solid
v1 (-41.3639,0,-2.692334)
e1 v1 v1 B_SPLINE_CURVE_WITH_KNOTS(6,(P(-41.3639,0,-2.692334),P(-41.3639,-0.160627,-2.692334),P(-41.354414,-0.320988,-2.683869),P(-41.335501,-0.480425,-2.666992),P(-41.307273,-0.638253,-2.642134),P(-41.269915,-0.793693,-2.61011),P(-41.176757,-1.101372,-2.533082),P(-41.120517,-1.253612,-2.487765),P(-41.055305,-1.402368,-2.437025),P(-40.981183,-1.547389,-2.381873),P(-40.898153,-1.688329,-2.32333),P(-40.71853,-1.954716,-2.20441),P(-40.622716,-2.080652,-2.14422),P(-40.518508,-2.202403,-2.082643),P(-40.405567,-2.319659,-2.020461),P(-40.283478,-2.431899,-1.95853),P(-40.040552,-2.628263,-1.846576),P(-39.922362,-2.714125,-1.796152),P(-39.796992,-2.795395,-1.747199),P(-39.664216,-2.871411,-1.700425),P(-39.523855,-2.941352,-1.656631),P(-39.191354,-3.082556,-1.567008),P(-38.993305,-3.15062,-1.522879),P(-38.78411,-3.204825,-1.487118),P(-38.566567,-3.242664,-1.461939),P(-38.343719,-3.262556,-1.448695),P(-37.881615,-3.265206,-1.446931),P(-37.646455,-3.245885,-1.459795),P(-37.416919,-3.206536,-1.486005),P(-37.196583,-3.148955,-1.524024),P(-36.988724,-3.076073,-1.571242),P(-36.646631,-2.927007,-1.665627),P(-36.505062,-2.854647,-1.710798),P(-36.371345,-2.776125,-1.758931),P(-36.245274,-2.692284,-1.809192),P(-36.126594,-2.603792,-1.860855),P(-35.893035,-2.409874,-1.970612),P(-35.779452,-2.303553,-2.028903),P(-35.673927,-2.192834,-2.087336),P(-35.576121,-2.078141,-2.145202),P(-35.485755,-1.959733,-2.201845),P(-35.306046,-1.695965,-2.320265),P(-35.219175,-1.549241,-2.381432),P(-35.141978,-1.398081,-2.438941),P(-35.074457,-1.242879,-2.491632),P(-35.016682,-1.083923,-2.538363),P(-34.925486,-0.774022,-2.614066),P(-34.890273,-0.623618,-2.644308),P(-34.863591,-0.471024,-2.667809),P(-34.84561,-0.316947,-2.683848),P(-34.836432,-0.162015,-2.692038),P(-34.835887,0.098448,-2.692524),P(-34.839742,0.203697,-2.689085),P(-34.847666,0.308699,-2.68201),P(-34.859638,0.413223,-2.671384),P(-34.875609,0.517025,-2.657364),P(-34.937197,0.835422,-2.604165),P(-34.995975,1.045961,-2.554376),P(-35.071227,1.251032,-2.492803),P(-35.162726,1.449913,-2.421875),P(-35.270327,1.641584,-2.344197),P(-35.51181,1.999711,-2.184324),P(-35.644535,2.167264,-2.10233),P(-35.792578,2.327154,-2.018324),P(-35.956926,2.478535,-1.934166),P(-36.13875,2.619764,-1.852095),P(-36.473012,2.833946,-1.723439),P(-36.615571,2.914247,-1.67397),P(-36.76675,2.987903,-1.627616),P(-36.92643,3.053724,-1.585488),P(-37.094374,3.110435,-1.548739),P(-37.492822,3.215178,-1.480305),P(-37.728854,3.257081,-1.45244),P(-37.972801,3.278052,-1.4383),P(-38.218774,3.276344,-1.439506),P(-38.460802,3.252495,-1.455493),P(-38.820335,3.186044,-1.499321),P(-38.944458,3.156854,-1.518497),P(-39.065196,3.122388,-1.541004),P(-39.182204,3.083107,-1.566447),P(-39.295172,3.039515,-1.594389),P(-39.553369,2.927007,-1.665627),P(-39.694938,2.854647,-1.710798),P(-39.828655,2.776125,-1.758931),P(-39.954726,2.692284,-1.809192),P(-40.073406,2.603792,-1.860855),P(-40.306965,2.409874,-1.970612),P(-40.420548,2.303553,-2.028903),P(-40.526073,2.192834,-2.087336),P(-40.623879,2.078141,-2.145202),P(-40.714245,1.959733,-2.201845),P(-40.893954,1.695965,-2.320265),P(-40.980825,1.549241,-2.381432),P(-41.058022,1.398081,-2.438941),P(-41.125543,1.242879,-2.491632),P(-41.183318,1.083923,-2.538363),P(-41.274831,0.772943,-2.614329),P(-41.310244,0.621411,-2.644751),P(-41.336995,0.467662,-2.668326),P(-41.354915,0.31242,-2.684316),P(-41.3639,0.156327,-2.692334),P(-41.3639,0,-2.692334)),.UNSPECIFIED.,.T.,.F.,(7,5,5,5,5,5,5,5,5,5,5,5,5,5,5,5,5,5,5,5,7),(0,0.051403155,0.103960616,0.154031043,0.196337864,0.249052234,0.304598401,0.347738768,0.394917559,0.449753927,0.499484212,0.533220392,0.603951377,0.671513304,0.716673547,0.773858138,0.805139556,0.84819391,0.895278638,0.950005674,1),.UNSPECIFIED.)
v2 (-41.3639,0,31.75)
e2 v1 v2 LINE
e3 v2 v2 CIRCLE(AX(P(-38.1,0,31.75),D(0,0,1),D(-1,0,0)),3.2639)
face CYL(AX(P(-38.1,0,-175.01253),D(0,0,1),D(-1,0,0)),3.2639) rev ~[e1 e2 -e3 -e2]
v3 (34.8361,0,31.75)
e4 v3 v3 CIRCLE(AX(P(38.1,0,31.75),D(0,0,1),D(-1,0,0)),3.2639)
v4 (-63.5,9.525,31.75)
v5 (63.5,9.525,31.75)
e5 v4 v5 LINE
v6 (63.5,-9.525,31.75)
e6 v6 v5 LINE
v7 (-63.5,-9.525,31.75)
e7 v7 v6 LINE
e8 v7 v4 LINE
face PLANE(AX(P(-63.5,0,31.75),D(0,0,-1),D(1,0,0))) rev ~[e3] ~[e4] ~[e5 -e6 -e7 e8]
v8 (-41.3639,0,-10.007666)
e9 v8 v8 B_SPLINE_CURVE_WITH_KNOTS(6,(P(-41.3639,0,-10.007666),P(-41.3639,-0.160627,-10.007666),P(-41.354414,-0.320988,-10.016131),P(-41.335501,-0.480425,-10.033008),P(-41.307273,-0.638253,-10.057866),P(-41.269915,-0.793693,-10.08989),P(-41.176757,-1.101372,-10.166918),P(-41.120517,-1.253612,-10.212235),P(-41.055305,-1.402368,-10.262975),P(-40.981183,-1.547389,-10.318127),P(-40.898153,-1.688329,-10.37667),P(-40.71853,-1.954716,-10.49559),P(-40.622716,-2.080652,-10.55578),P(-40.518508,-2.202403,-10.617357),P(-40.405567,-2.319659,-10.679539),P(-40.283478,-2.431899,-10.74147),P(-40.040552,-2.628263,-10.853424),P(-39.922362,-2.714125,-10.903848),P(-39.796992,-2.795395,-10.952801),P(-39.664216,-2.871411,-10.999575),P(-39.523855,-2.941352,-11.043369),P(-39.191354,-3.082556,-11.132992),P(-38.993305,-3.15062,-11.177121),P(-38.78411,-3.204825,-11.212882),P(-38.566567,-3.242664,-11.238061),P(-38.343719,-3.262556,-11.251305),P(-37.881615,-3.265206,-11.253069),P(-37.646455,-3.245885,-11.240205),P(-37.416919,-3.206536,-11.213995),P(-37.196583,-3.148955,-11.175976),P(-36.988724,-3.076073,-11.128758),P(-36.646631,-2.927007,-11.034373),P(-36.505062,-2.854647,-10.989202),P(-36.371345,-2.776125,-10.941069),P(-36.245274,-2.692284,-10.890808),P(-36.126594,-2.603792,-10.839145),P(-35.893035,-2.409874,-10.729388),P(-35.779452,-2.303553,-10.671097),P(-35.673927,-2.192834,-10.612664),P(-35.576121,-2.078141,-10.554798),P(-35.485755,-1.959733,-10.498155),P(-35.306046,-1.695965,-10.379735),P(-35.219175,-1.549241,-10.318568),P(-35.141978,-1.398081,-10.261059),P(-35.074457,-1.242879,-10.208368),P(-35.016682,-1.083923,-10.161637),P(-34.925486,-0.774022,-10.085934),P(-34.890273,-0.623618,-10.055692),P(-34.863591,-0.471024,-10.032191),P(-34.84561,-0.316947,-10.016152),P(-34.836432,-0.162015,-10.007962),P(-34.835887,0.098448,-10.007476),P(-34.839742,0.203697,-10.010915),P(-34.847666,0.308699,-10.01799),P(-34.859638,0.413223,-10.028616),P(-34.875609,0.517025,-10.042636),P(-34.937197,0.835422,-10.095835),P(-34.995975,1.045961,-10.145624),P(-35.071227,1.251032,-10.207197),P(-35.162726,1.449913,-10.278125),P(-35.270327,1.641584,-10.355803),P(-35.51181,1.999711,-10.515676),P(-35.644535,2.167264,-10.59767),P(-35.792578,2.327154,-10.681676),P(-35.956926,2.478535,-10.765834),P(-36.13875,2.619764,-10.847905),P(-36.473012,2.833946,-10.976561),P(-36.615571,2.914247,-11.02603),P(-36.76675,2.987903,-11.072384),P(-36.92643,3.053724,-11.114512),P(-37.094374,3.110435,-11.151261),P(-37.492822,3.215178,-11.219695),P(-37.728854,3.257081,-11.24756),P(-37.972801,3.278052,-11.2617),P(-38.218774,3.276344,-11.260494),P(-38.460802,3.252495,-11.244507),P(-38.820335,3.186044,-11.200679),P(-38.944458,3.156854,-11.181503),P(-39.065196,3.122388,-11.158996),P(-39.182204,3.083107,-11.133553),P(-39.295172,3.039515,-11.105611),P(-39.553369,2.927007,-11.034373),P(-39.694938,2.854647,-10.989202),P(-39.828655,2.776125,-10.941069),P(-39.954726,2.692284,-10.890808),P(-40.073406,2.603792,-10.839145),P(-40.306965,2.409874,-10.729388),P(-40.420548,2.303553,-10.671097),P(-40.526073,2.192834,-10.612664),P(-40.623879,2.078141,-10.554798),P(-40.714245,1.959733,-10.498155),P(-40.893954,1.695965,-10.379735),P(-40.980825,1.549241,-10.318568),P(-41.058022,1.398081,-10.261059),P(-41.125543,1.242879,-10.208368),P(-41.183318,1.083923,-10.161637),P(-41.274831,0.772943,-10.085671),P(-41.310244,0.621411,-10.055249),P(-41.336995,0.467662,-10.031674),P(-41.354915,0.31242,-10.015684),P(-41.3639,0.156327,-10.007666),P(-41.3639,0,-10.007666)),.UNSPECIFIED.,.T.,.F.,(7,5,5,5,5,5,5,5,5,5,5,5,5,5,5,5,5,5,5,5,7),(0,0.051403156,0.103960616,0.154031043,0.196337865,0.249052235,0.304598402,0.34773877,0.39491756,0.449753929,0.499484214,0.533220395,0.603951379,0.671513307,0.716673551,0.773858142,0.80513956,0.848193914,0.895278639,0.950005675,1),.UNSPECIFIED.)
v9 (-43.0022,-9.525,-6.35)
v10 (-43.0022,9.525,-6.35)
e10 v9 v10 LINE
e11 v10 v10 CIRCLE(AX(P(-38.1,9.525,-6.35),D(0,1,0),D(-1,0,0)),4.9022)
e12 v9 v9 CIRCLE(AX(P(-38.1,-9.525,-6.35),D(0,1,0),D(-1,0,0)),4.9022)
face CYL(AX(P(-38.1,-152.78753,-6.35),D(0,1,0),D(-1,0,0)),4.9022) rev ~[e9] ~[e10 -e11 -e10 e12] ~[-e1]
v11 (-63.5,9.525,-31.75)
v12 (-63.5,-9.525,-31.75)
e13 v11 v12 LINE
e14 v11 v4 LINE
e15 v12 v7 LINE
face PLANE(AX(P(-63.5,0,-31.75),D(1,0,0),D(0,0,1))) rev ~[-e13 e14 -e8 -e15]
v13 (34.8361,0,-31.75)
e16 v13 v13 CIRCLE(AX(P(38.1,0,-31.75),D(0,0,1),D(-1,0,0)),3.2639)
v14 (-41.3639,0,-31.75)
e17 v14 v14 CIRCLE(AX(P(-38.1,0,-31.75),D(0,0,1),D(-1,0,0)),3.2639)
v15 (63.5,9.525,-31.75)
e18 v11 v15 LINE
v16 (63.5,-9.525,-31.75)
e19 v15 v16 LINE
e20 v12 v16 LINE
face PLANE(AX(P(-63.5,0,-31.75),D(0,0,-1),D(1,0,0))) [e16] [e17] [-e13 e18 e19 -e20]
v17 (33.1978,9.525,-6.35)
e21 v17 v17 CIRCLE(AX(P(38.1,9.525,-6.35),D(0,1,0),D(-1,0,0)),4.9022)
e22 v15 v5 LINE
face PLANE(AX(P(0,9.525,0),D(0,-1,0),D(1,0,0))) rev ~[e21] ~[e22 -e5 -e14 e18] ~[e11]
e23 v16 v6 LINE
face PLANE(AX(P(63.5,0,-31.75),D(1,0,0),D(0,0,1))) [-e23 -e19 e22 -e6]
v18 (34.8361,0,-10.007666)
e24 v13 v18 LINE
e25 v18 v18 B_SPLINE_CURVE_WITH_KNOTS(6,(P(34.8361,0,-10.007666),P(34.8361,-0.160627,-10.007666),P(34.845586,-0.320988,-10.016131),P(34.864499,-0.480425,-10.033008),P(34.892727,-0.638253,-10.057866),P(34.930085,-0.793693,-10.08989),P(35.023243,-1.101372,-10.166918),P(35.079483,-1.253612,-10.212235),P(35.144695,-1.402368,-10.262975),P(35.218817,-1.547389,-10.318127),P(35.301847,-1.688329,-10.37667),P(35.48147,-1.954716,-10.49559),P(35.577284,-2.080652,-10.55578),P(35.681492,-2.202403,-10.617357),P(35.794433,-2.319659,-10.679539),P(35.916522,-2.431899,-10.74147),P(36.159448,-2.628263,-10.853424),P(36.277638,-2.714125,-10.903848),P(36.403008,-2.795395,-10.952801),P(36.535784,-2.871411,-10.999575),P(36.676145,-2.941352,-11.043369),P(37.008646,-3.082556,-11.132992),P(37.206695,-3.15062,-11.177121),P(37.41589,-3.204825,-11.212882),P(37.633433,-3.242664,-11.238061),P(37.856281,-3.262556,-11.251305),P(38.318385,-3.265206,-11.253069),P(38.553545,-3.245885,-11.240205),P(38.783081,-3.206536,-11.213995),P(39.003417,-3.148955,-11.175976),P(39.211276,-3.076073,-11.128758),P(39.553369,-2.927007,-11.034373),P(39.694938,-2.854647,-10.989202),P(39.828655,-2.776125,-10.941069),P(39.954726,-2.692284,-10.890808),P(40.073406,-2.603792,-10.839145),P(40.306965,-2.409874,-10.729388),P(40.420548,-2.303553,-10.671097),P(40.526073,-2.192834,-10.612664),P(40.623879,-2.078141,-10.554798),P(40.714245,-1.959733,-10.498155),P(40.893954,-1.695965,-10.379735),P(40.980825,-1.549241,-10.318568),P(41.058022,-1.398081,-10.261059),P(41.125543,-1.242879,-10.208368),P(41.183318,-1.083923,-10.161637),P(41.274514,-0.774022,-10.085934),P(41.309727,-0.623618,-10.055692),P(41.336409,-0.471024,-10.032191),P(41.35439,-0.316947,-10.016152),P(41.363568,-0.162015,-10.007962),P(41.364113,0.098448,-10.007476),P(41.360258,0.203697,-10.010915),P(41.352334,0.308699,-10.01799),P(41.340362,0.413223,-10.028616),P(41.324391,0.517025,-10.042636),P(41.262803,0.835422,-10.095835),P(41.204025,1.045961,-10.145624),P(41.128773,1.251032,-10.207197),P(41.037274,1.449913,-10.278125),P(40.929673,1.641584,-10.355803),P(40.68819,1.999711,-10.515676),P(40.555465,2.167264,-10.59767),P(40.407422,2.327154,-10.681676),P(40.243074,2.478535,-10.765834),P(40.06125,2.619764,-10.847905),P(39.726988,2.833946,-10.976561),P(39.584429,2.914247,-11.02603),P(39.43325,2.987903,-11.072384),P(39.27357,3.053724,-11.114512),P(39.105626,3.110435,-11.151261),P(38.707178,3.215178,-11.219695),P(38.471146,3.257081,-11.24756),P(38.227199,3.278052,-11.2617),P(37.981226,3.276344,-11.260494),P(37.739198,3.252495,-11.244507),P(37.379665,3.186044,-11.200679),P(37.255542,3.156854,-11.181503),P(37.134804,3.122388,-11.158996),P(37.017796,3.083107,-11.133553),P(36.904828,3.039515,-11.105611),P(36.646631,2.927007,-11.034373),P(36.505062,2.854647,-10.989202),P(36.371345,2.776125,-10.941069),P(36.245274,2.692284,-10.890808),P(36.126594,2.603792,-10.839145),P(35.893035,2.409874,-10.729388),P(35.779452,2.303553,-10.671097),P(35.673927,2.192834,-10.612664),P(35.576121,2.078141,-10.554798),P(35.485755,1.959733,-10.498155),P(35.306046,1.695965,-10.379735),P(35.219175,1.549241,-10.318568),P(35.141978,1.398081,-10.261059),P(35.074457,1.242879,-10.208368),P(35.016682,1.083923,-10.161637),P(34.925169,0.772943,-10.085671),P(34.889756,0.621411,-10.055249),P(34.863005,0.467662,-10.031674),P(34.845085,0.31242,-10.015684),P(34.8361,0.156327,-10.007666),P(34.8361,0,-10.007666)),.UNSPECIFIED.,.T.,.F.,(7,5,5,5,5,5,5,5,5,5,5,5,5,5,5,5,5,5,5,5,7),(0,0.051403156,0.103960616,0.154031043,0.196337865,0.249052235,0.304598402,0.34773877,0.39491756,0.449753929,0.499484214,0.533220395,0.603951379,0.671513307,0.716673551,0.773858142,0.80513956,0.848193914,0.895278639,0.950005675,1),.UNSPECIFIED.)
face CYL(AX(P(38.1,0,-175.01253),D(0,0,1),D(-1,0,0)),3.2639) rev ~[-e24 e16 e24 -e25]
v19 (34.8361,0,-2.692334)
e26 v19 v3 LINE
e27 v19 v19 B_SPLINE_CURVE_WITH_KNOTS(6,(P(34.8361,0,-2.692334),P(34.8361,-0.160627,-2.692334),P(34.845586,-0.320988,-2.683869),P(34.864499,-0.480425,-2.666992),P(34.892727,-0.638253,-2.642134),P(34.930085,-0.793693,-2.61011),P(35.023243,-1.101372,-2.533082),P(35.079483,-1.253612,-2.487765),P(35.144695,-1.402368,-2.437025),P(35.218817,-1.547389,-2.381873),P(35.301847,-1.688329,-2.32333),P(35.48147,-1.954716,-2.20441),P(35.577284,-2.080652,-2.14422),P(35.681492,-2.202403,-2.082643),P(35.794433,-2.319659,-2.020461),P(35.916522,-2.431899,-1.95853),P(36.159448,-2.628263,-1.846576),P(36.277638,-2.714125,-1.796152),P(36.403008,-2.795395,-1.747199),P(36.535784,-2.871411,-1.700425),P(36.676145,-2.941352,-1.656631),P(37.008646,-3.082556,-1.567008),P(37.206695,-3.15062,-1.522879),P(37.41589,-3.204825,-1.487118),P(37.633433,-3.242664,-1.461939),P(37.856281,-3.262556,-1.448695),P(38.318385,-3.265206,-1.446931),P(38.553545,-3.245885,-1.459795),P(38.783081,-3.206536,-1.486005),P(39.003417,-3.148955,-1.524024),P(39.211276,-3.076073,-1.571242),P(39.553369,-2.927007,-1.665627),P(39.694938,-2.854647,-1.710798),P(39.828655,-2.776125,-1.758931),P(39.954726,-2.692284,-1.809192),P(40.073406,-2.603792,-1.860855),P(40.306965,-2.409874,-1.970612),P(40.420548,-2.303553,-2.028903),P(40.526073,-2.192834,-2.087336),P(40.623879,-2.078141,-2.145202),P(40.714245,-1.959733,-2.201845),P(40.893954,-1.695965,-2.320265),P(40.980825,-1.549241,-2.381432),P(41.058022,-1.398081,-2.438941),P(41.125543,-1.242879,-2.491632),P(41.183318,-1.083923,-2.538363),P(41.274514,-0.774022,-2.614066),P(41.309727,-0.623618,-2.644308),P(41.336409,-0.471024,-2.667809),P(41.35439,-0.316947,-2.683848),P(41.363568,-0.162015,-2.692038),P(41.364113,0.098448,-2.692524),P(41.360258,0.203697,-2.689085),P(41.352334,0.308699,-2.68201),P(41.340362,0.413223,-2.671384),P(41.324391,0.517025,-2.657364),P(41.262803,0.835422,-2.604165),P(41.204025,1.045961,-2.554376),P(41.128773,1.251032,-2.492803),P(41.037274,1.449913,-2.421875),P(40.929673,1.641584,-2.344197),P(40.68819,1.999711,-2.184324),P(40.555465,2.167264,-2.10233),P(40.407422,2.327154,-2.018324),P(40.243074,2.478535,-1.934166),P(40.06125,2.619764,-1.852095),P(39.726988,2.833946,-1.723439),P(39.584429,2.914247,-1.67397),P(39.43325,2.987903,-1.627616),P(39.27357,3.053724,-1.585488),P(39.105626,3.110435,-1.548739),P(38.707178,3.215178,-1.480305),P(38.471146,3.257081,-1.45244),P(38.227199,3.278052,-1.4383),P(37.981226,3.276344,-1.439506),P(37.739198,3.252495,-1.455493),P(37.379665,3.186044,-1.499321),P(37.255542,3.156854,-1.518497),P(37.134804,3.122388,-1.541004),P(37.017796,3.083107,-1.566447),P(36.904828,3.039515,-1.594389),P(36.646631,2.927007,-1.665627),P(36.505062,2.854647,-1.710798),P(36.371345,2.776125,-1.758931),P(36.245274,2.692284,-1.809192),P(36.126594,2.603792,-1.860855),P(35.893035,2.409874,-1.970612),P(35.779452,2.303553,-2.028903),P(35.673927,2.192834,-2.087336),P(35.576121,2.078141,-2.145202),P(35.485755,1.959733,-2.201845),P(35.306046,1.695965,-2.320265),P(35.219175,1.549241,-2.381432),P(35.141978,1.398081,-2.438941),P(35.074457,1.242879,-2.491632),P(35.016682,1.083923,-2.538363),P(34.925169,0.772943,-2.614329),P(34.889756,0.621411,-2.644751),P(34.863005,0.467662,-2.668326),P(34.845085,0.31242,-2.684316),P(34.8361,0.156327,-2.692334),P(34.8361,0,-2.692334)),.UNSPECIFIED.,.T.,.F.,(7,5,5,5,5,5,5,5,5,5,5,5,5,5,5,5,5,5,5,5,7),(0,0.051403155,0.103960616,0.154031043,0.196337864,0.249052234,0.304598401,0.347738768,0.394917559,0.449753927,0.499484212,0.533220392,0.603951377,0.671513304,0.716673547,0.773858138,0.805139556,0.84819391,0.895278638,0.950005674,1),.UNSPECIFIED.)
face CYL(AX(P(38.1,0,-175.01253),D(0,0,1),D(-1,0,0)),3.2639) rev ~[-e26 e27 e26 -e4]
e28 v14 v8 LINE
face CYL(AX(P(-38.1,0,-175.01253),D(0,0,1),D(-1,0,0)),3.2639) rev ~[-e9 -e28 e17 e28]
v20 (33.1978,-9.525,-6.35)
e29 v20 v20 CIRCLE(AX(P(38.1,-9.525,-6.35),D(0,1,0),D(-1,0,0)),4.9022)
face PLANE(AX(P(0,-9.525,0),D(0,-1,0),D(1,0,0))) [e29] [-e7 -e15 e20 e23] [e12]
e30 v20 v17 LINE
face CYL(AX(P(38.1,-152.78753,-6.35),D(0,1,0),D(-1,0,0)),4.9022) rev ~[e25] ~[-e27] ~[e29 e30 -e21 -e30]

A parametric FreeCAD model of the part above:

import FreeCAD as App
import Part
import Sketcher
Q = App.Units.Quantity


def add_polygon(sketch, points):
    """Adds a closed chain of lines whose ends are joined by coincident constraints."""
    first, n = sketch.GeometryCount, len(points)
    for a, b in zip(points, points[1:] + points[:1]):
        sketch.addGeometry(Part.LineSegment(App.Vector(*a, 0), App.Vector(*b, 0)), False)
    for i in range(n):
        sketch.addConstraint(Sketcher.Constraint("Coincident", first + i, 2, first + (i + 1) % n, 1))

doc = App.newDocument("Part")
body = doc.addObject("PartDesign::Body", "Body")

# Sketch on XZ plane
sketch1 = doc.addObject("Sketcher::SketchObject", "Sketch")
body.addObject(sketch1)
sketch1.AttachmentSupport = (doc.XZ_Plane, [""])
sketch1.MapMode = "FlatFace"
add_polygon(sketch1, [(-64, 32), (-64, -32), (64, -32), (64, 32)])  # lines 0-3
sketch1.addConstraint([
    Sketcher.Constraint("Vertical", 0),
    Sketcher.Constraint("Horizontal", 1),
    Sketcher.Constraint("Vertical", 2),
    Sketcher.Constraint("Horizontal", 3),
    Sketcher.Constraint("Symmetric", 0, 2, 2, 2, -1, 1),
    Sketcher.Constraint("DistanceX", 1, 1, 1, 2, Q("5 in")),
    Sketcher.Constraint("DistanceY", 0, 2, 0, 1, Q("2.5 in")),
])
pad1 = doc.addObject("PartDesign::Pad", "Pad")
body.addObject(pad1)
pad1.Profile = sketch1
pad1.Length = Q("0.75 in")
pad1.Midplane = True

# Sketch on XZ plane
sketch2 = doc.addObject("Sketcher::SketchObject", "Sketch001")
body.addObject(sketch2)
sketch2.AttachmentSupport = (doc.XZ_Plane, [""])
sketch2.MapMode = "FlatFace"
sketch2.AttachmentOffset = App.Placement(App.Vector(0, 0, 0.375 * 25.4), App.Rotation())
sketch2.addGeometry([
    Part.Circle(App.Vector(-38.1, -6.3, 0), App.Vector(0, 0, 1), 4.9),
    Part.Circle(App.Vector(38.1, -6.3, 0), App.Vector(0, 0, 1), 4.9),
], False)
sketch2.addConstraint([
    Sketcher.Constraint("Equal", 0, 1),
    Sketcher.Constraint("Symmetric", 0, 3, 1, 3, -2),
    Sketcher.Constraint("Diameter", 0, Q("0.386 in")),
    Sketcher.Constraint("DistanceX", 0, 3, 1, 3, Q("3 in")),
    Sketcher.Constraint("DistanceY", 0, 3, -1, 1, Q("0.25 in")),
])
doc.recompute()
hole = doc.addObject("PartDesign::Hole", "Hole")
body.addObject(hole)
hole.Profile = sketch2
hole.ThreadType = "None"
hole.Diameter = Q("0.386 in")
hole.DepthType = "ThroughAll"

# Sketch on XY plane
sketch3 = doc.addObject("Sketcher::SketchObject", "Sketch002")
body.addObject(sketch3)
sketch3.AttachmentSupport = (doc.XY_Plane, [""])
sketch3.MapMode = "FlatFace"
sketch3.AttachmentOffset = App.Placement(App.Vector(0, 0, -1.25 * 25.4), App.Rotation())
sketch3.addGeometry([
    Part.Circle(App.Vector(-38.1, 0, 0), App.Vector(0, 0, 1), 3.3),
    Part.Circle(App.Vector(38.1, 0, 0), App.Vector(0, 0, 1), 3.3),
], False)
sketch3.addConstraint([
    Sketcher.Constraint("Equal", 0, 1),
    Sketcher.Constraint("Symmetric", 0, 3, 1, 3, -1, 1),
    Sketcher.Constraint("PointOnObject", 0, 3, -1),
    Sketcher.Constraint("Diameter", 0, Q("0.257 in")),
    Sketcher.Constraint("DistanceX", 0, 3, 1, 3, Q("3 in")),
])
doc.recompute()
hole2 = doc.addObject("PartDesign::Hole", "Hole001")
body.addObject(hole2)
hole2.Profile = sketch3
hole2.ThreadType = "None"
hole2.Diameter = Q("0.257 in")
hole2.DepthType = "ThroughAll"
hole2.Reversed = True

doc.recompute()
